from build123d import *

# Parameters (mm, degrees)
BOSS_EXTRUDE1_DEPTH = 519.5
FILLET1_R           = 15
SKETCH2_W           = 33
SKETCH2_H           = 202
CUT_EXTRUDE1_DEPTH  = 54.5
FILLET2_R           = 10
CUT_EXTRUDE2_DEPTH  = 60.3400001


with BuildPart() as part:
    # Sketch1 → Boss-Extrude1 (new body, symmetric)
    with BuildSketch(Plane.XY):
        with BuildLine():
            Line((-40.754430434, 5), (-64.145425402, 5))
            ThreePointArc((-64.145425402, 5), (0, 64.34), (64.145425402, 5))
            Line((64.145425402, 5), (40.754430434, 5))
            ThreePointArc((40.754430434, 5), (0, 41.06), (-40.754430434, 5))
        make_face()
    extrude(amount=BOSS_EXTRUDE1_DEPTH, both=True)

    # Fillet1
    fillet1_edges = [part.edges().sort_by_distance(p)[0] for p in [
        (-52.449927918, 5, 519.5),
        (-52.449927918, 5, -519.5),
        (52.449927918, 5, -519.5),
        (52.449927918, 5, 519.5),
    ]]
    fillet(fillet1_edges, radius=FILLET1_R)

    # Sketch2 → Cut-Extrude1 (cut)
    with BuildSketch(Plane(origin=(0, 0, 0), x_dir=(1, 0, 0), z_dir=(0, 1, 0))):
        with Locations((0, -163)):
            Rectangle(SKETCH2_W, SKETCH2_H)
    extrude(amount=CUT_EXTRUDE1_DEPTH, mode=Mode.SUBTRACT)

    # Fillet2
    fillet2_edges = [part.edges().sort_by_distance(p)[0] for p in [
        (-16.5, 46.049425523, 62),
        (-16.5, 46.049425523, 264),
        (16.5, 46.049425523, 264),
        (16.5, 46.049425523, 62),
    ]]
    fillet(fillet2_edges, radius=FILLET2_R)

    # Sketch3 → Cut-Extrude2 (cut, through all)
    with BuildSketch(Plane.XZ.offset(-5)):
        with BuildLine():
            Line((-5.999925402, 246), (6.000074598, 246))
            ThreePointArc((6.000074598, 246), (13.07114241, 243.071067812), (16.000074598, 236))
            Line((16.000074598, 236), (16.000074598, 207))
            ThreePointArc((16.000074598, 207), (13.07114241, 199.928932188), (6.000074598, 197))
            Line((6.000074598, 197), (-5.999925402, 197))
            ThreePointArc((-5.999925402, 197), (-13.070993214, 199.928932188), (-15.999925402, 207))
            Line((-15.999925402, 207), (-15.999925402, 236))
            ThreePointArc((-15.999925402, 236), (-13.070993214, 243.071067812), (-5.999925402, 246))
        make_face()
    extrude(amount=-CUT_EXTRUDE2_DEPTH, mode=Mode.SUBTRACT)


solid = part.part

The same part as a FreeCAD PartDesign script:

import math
import FreeCAD as App
import Part
import Sketcher


def edges_at(feature, points):
    """Names of the edges that pass closest to the given points."""
    edges = feature.Shape.Edges
    near = lambda p: min(range(len(edges)), key=lambda i: edges[i].distToShape(Part.Vertex(*p))[0])
    return sorted({f"Edge{near(p) + 1}" for p in points})

doc = App.newDocument("Part")
params = doc.addObject("Spreadsheet::Sheet", "Params")
for row, (alias, value) in enumerate([
    ("sketch1_radius", "41.06 mm"),
    ("sketch1_radius2", "64.34 mm"),
    ("pad1_length", "1039 mm"),
    ("fillet_radius", "15 mm"),
    ("sketch2_width", "33 mm"),
    ("sketch2_height", "202 mm"),
    ("pocket1_length", "54.5 mm"),
    ("fillet2_radius", "10 mm"),
    ("sketch3_radius", "10 mm"),
    ("sketch3_width", "12 mm"),
    ("sketch3_height", "29 mm"),
], start=1):
    params.set(f"A{row}", alias)
    params.set(f"B{row}", "=" + value)
    params.setAlias(f"B{row}", alias)

body = doc.addObject("PartDesign::Body", "Body")

# Sketch on XY plane
sketch1 = body.newObject("Sketcher::SketchObject", "Sketch")
sketch1.AttachmentSupport = (doc.getObject("XY_Plane"), [""])
sketch1.MapMode = "FlatFace"
sketch1.addGeometry(Part.LineSegment(App.Vector(-64.145425, 5, 0), App.Vector(-40.75443, 5, 0)), False)
sketch1.addGeometry(Part.ArcOfCircle(Part.Circle(App.Vector(0, 0, 0), App.Vector(0, 0, 1), 41.06), math.radians(6.994439), math.radians(173.005561)), False)
sketch1.addGeometry(Part.LineSegment(App.Vector(40.75443, 5, 0), App.Vector(64.145425, 5, 0)), False)
sketch1.addGeometry(Part.ArcOfCircle(Part.Circle(App.Vector(0, 0, 0), App.Vector(0, 0, 1), 64.34), math.radians(4.457072), math.radians(175.542928)), False)
sketch1.addConstraint(Sketcher.Constraint("Coincident", 0, 2, 1, 2))
sketch1.addConstraint(Sketcher.Constraint("Coincident", 1, 1, 2, 1))
sketch1.addConstraint(Sketcher.Constraint("Coincident", 2, 2, 3, 1))
sketch1.addConstraint(Sketcher.Constraint("Coincident", 3, 2, 0, 1))
sketch1.addConstraint(Sketcher.Constraint("Horizontal", 0))
sketch1.addConstraint(Sketcher.Constraint("Horizontal", 2))
sketch1.addConstraint(Sketcher.Constraint("Coincident", 1, 3, -1, 1))
sketch1.addConstraint(Sketcher.Constraint("Coincident", 3, 3, -1, 1))
sketch1.addConstraint(Sketcher.Constraint("Horizontal", 0, 2, 1, 1))
sketch1.addConstraint(Sketcher.Constraint("Radius", 1, 41.06))
sketch1.addConstraint(Sketcher.Constraint("Radius", 3, 64.34))
sketch1.addConstraint(Sketcher.Constraint("DistanceY", -1, 1, 0, 2, 5.0))
sketch1.setExpression("Constraints[9]", "Params.sketch1_radius")
sketch1.setExpression("Constraints[10]", "Params.sketch1_radius2")
pad1 = body.newObject("PartDesign::Pad", "Pad")
pad1.Profile = sketch1
pad1.setExpression("Length", "Params.pad1_length")
pad1.Midplane = True
doc.recompute()

fillet = body.newObject("PartDesign::Fillet", "Fillet")
fillet.Base = (pad1, edges_at(pad1, [
    (-52.45, 5, 519.5),
    (-52.45, 5, -519.5),
    (52.45, 5, -519.5),
    (52.45, 5, 519.5),
]))
fillet.setExpression("Radius", "Params.fillet_radius")

# Sketch on XZ plane
sketch2 = body.newObject("Sketcher::SketchObject", "Sketch001")
sketch2.AttachmentSupport = (doc.getObject("XZ_Plane"), [""])
sketch2.MapMode = "FlatFace"
sketch2.addGeometry(Part.LineSegment(App.Vector(-16.5, 62, 0), App.Vector(-16.5, 264, 0)), False)
sketch2.addGeometry(Part.LineSegment(App.Vector(-16.5, 264, 0), App.Vector(16.5, 264, 0)), False)
sketch2.addGeometry(Part.LineSegment(App.Vector(16.5, 264, 0), App.Vector(16.5, 62, 0)), False)
sketch2.addGeometry(Part.LineSegment(App.Vector(16.5, 62, 0), App.Vector(-16.5, 62, 0)), False)
sketch2.addConstraint(Sketcher.Constraint("Coincident", 0, 2, 1, 1))
sketch2.addConstraint(Sketcher.Constraint("Coincident", 1, 2, 2, 1))
sketch2.addConstraint(Sketcher.Constraint("Coincident", 2, 2, 3, 1))
sketch2.addConstraint(Sketcher.Constraint("Coincident", 3, 2, 0, 1))
sketch2.addConstraint(Sketcher.Constraint("Vertical", 0))
sketch2.addConstraint(Sketcher.Constraint("Horizontal", 1))
sketch2.addConstraint(Sketcher.Constraint("Vertical", 2))
sketch2.addConstraint(Sketcher.Constraint("Horizontal", 3))
sketch2.addConstraint(Sketcher.Constraint("DistanceX", 1, 1, 1, 2, 33.0))
sketch2.addConstraint(Sketcher.Constraint("DistanceY", 0, 1, 0, 2, 202.0))
sketch2.addConstraint(Sketcher.Constraint("DistanceY", -1, 1, 0, 2, 264.0))
sketch2.addConstraint(Sketcher.Constraint("DistanceX", 0, 2, -1, 1, 16.5))
sketch2.setExpression("Constraints[8]", "Params.sketch2_width")
sketch2.setExpression("Constraints[9]", "Params.sketch2_height")
pocket1 = body.newObject("PartDesign::Pocket", "Pocket")
pocket1.Profile = sketch2
pocket1.setExpression("Length", "Params.pocket1_length")
doc.recompute()

fillet2 = body.newObject("PartDesign::Fillet", "Fillet001")
fillet2.Base = (pocket1, edges_at(pocket1, [
    (-16.5, 46.049, 62),
    (-16.5, 46.049, 264),
    (16.5, 46.049, 264),
    (16.5, 46.049, 62),
]))
fillet2.setExpression("Radius", "Params.fillet2_radius")

# Sketch on XZ plane
sketch3 = body.newObject("Sketcher::SketchObject", "Sketch002")
sketch3.AttachmentSupport = (doc.getObject("XZ_Plane"), [""])
sketch3.MapMode = "FlatFace"
sketch3.AttachmentOffset = App.Placement(App.Vector(0, 0, -5), App.Rotation())
sketch3.addGeometry(Part.LineSegment(App.Vector(6.000075, 246, 0), App.Vector(-5.999925, 246, 0)), False)
sketch3.addGeometry(Part.ArcOfCircle(Part.Circle(App.Vector(-5.999925, 236, 0), App.Vector(0, 0, 1), 10), math.radians(90), math.radians(180)), False)
sketch3.addGeometry(Part.LineSegment(App.Vector(-15.999925, 236, 0), App.Vector(-15.999925, 207, 0)), False)
sketch3.addGeometry(Part.ArcOfCircle(Part.Circle(App.Vector(-5.999925, 207, 0), App.Vector(0, 0, 1), 10), math.radians(180), math.radians(270)), False)
sketch3.addGeometry(Part.LineSegment(App.Vector(-5.999925, 197, 0), App.Vector(6.000075, 197, 0)), False)
sketch3.addGeometry(Part.ArcOfCircle(Part.Circle(App.Vector(6.000075, 207, 0), App.Vector(0, 0, 1), 10), math.radians(-90), math.radians(0)), False)
sketch3.addGeometry(Part.LineSegment(App.Vector(16.000075, 207, 0), App.Vector(16.000075, 236, 0)), False)
sketch3.addGeometry(Part.ArcOfCircle(Part.Circle(App.Vector(6.000075, 236, 0), App.Vector(0, 0, 1), 10), math.radians(0), math.radians(90)), False)
sketch3.addConstraint(Sketcher.Constraint("Tangent", 0, 2, 1, 1))
sketch3.addConstraint(Sketcher.Constraint("Tangent", 1, 2, 2, 1))
sketch3.addConstraint(Sketcher.Constraint("Tangent", 2, 2, 3, 1))
sketch3.addConstraint(Sketcher.Constraint("Tangent", 3, 2, 4, 1))
sketch3.addConstraint(Sketcher.Constraint("Tangent", 4, 2, 5, 1))
sketch3.addConstraint(Sketcher.Constraint("Tangent", 5, 2, 6, 1))
sketch3.addConstraint(Sketcher.Constraint("Tangent", 6, 2, 7, 1))
sketch3.addConstraint(Sketcher.Constraint("Tangent", 7, 2, 0, 1))
sketch3.addConstraint(Sketcher.Constraint("Horizontal", 0))
sketch3.addConstraint(Sketcher.Constraint("Vertical", 2))
sketch3.addConstraint(Sketcher.Constraint("Horizontal", 4))
sketch3.addConstraint(Sketcher.Constraint("Vertical", 6))
sketch3.addConstraint(Sketcher.Constraint("Equal", 1, 3))
sketch3.addConstraint(Sketcher.Constraint("Equal", 3, 5))
sketch3.addConstraint(Sketcher.Constraint("Equal", 5, 7))
sketch3.addConstraint(Sketcher.Constraint("Radius", 1, 10.0))
sketch3.addConstraint(Sketcher.Constraint("DistanceX", 0, 2, 0, 1, 12.0))
sketch3.addConstraint(Sketcher.Constraint("DistanceY", 2, 2, 2, 1, 29.0))
sketch3.addConstraint(Sketcher.Constraint("DistanceY", -1, 1, 1, 3, 236.0))
sketch3.addConstraint(Sketcher.Constraint("DistanceX", 1, 3, -1, 1, 5.999925))
sketch3.setExpression("Constraints[15]", "Params.sketch3_radius")
sketch3.setExpression("Constraints[16]", "Params.sketch3_width")
sketch3.setExpression("Constraints[17]", "Params.sketch3_height")
pocket2 = body.newObject("PartDesign::Pocket", "Pocket001")
pocket2.Profile = sketch3
pocket2.Type = "ThroughAll"

doc.recompute()
